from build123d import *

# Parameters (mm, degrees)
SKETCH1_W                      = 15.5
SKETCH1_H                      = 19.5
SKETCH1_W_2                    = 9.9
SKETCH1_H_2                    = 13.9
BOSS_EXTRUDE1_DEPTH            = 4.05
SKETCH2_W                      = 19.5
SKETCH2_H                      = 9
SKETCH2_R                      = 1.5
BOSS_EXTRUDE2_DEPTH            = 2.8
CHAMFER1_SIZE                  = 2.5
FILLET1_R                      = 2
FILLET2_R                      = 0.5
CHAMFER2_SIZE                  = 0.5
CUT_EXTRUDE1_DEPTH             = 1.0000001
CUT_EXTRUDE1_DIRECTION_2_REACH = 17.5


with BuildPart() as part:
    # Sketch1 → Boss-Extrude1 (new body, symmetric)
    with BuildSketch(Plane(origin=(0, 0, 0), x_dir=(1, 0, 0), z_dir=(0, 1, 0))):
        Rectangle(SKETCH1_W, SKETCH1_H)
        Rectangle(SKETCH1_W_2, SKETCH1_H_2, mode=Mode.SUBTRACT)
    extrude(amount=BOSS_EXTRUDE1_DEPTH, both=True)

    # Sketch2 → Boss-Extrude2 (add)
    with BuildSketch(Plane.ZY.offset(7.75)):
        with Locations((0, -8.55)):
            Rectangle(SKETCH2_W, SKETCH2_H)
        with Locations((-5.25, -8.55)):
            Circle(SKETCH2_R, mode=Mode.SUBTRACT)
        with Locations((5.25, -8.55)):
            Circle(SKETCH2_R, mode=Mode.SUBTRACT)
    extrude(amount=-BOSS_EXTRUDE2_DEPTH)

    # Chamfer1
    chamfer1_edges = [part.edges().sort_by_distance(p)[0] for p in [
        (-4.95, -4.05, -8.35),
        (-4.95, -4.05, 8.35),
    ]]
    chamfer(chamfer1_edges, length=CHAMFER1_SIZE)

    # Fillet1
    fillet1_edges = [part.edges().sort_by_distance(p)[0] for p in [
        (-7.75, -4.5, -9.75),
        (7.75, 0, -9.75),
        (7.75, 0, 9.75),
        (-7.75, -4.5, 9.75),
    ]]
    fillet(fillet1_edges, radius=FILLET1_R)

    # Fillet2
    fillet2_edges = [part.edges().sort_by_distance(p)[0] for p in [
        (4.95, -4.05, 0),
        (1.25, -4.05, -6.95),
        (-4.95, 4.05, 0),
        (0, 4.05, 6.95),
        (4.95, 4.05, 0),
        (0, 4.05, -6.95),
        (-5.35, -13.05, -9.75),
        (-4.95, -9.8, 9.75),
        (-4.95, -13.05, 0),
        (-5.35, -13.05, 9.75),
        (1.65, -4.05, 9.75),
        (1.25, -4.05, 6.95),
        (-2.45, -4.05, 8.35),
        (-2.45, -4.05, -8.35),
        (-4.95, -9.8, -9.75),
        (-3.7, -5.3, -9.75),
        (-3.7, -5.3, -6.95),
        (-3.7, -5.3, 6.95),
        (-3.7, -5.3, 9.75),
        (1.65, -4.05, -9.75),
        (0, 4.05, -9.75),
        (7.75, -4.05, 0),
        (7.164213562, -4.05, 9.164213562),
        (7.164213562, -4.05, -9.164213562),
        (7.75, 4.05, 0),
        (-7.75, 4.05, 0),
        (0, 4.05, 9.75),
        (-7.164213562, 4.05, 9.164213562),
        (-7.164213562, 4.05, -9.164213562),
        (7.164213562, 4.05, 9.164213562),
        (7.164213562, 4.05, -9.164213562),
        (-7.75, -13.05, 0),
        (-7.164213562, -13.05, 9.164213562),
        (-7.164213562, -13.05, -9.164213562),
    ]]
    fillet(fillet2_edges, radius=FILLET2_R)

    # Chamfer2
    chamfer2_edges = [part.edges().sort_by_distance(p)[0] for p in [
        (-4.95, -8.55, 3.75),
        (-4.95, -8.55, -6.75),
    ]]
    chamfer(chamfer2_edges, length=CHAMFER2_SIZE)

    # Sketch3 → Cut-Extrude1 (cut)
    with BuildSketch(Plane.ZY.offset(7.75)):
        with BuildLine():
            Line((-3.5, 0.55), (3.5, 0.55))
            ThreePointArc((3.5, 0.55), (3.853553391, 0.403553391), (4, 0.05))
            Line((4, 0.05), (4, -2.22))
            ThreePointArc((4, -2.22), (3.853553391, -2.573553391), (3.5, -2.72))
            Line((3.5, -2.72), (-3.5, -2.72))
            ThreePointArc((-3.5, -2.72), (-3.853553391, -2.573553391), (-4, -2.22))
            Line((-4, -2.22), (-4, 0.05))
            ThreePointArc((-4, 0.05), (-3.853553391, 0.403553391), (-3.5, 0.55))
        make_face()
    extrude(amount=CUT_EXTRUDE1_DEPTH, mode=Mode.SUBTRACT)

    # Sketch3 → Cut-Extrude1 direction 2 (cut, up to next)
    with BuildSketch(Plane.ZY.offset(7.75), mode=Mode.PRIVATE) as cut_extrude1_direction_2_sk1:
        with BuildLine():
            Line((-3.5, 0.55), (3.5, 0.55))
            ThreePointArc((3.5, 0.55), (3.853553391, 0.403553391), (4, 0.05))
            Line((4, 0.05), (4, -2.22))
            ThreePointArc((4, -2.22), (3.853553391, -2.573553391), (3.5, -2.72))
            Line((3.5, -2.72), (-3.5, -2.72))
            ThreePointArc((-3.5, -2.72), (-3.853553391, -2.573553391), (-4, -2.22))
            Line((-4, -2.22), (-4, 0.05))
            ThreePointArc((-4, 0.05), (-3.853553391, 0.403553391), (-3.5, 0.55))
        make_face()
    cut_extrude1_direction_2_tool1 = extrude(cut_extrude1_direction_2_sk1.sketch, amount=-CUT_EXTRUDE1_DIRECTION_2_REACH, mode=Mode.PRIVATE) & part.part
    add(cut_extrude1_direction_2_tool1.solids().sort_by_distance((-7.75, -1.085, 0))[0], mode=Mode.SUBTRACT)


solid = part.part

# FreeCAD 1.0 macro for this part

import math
import FreeCAD as App
import Part
import Sketcher


def edges_at(feature, points):
    """Names of the edges that pass closest to the given points."""
    edges = feature.Shape.Edges
    near = lambda p: min(range(len(edges)), key=lambda i: edges[i].distToShape(Part.Vertex(*p))[0])
    return sorted({f"Edge{near(p) + 1}" for p in points})

doc = App.newDocument("Part")
params = doc.addObject("Spreadsheet::Sheet", "Params")
for row, (alias, value) in enumerate([
    ("sketch1_width", "15.5 mm"),
    ("sketch1_width2", "9.9 mm"),
    ("sketch1_height", "19.5 mm"),
    ("sketch1_height2", "13.9 mm"),
    ("pad1_length", "8.1 mm"),
    ("sketch2_diameter", "3 mm"),
    ("sketch2_width", "9 mm"),
    ("sketch2_height", "19.5 mm"),
    ("pad2_length", "2.8 mm"),
    ("chamfer_size", "2.5 mm"),
    ("fillet_radius", "2 mm"),
    ("fillet2_radius", "0.5 mm"),
    ("chamfer2_size", "0.5 mm"),
    ("sketch3_radius", "0.5 mm"),
    ("sketch3_height", "7 mm"),
    ("sketch3_width", "2.27 mm"),
    ("pocket1_length", "1 mm"),
    ("sketch4_radius", "0.5 mm"),
    ("sketch4_height", "7 mm"),
    ("sketch4_width", "2.27 mm"),
], start=1):
    params.set(f"A{row}", alias)
    params.set(f"B{row}", "=" + value)
    params.setAlias(f"B{row}", alias)

body = doc.addObject("PartDesign::Body", "Body")

# Sketch on XZ plane
sketch1 = body.newObject("Sketcher::SketchObject", "Sketch")
sketch1.AttachmentSupport = (doc.getObject("XZ_Plane"), [""])
sketch1.MapMode = "FlatFace"
sketch1.addGeometry(Part.LineSegment(App.Vector(-8, -10, 0), App.Vector(-8, 10, 0)), False)
sketch1.addGeometry(Part.LineSegment(App.Vector(-8, 10, 0), App.Vector(8, 10, 0)), False)
sketch1.addGeometry(Part.LineSegment(App.Vector(8, 10, 0), App.Vector(8, -10, 0)), False)
sketch1.addGeometry(Part.LineSegment(App.Vector(8, -10, 0), App.Vector(-8, -10, 0)), False)
sketch1.addGeometry(Part.LineSegment(App.Vector(5, 7, 0), App.Vector(-5, 7, 0)), False)
sketch1.addGeometry(Part.LineSegment(App.Vector(-5, 7, 0), App.Vector(-5, -7, 0)), False)
sketch1.addGeometry(Part.LineSegment(App.Vector(-5, -7, 0), App.Vector(5, -7, 0)), False)
sketch1.addGeometry(Part.LineSegment(App.Vector(5, -7, 0), App.Vector(5, 7, 0)), False)
sketch1.addConstraint(Sketcher.Constraint("Coincident", 0, 2, 1, 1))
sketch1.addConstraint(Sketcher.Constraint("Coincident", 1, 2, 2, 1))
sketch1.addConstraint(Sketcher.Constraint("Coincident", 2, 2, 3, 1))
sketch1.addConstraint(Sketcher.Constraint("Coincident", 3, 2, 0, 1))
sketch1.addConstraint(Sketcher.Constraint("Coincident", 4, 2, 5, 1))
sketch1.addConstraint(Sketcher.Constraint("Coincident", 5, 2, 6, 1))
sketch1.addConstraint(Sketcher.Constraint("Coincident", 6, 2, 7, 1))
sketch1.addConstraint(Sketcher.Constraint("Coincident", 7, 2, 4, 1))
sketch1.addConstraint(Sketcher.Constraint("Vertical", 0))
sketch1.addConstraint(Sketcher.Constraint("Horizontal", 1))
sketch1.addConstraint(Sketcher.Constraint("Vertical", 2))
sketch1.addConstraint(Sketcher.Constraint("Horizontal", 3))
sketch1.addConstraint(Sketcher.Constraint("Horizontal", 4))
sketch1.addConstraint(Sketcher.Constraint("Vertical", 5))
sketch1.addConstraint(Sketcher.Constraint("Horizontal", 6))
sketch1.addConstraint(Sketcher.Constraint("Vertical", 7))
sketch1.addConstraint(Sketcher.Constraint("Symmetric", 0, 2, 2, 2, -1, 1))
sketch1.addConstraint(Sketcher.Constraint("Symmetric", 4, 2, 6, 2, -1, 1))
sketch1.addConstraint(Sketcher.Constraint("DistanceX", 1, 1, 1, 2, 15.5))
sketch1.addConstraint(Sketcher.Constraint("DistanceX", 4, 2, 4, 1, 9.9))
sketch1.addConstraint(Sketcher.Constraint("DistanceY", 0, 1, 0, 2, 19.5))
sketch1.addConstraint(Sketcher.Constraint("DistanceY", 5, 2, 5, 1, 13.9))
sketch1.setExpression("Constraints[18]", "Params.sketch1_width")
sketch1.setExpression("Constraints[19]", "Params.sketch1_width2")
sketch1.setExpression("Constraints[20]", "Params.sketch1_height")
sketch1.setExpression("Constraints[21]", "Params.sketch1_height2")
pad1 = body.newObject("PartDesign::Pad", "Pad")
pad1.Profile = sketch1
pad1.setExpression("Length", "Params.pad1_length")
pad1.Midplane = True

# Sketch on YZ plane
sketch2 = body.newObject("Sketcher::SketchObject", "Sketch001")
sketch2.AttachmentSupport = (doc.getObject("YZ_Plane"), [""])
sketch2.MapMode = "FlatFace"
sketch2.AttachmentOffset = App.Placement(App.Vector(0, 0, -7.75), App.Rotation())
sketch2.addGeometry(Part.LineSegment(App.Vector(-4, -9.8, 0), App.Vector(-13.1, -9.8, 0)), False)
sketch2.addGeometry(Part.LineSegment(App.Vector(-13.1, -9.8, 0), App.Vector(-13.1, 9.8, 0)), False)
sketch2.addGeometry(Part.LineSegment(App.Vector(-13.1, 9.8, 0), App.Vector(-4, 9.8, 0)), False)
sketch2.addGeometry(Part.LineSegment(App.Vector(-4, 9.8, 0), App.Vector(-4, -9.8, 0)), False)
sketch2.addGeometry(Part.Circle(App.Vector(-8.6, -5.2, 0), App.Vector(0, 0, 1), 1.5), False)
sketch2.addGeometry(Part.Circle(App.Vector(-8.6, 5.2, 0), App.Vector(0, 0, 1), 1.5), False)
sketch2.addConstraint(Sketcher.Constraint("Coincident", 0, 2, 1, 1))
sketch2.addConstraint(Sketcher.Constraint("Coincident", 1, 2, 2, 1))
sketch2.addConstraint(Sketcher.Constraint("Coincident", 2, 2, 3, 1))
sketch2.addConstraint(Sketcher.Constraint("Coincident", 3, 2, 0, 1))
sketch2.addConstraint(Sketcher.Constraint("Horizontal", 0))
sketch2.addConstraint(Sketcher.Constraint("Vertical", 1))
sketch2.addConstraint(Sketcher.Constraint("Horizontal", 2))
sketch2.addConstraint(Sketcher.Constraint("Vertical", 3))
sketch2.addConstraint(Sketcher.Constraint("Equal", 4, 5))
sketch2.addConstraint(Sketcher.Constraint("Symmetric", 4, 3, 5, 3, -1))
sketch2.addConstraint(Sketcher.Constraint("Diameter", 4, 3.0))
sketch2.addConstraint(Sketcher.Constraint("DistanceX", 0, 2, 0, 1, 9.0))
sketch2.addConstraint(Sketcher.Constraint("DistanceY", 1, 1, 1, 2, 19.5))
sketch2.addConstraint(Sketcher.Constraint("DistanceY", 0, 2, 5, 3, 15.0))
sketch2.addConstraint(Sketcher.Constraint("DistanceY", 4, 3, 1, 2, 15.0))
sketch2.addConstraint(Sketcher.Constraint("DistanceX", 0, 2, 4, 3, 4.5))
sketch2.addConstraint(Sketcher.Constraint("DistanceX", 4, 3, -1, 1, 8.55))
sketch2.setExpression("Constraints[10]", "Params.sketch2_diameter")
sketch2.setExpression("Constraints[11]", "Params.sketch2_width")
sketch2.setExpression("Constraints[12]", "Params.sketch2_height")
pad2 = body.newObject("PartDesign::Pad", "Pad001")
pad2.Profile = sketch2
pad2.setExpression("Length", "Params.pad2_length")
doc.recompute()

chamfer = body.newObject("PartDesign::Chamfer", "Chamfer")
chamfer.Base = (pad2, edges_at(pad2, [(-4.95, -4.05, -8.35), (-4.95, -4.05, 8.35)]))
chamfer.setExpression("Size", "Params.chamfer_size")
doc.recompute()

fillet = body.newObject("PartDesign::Fillet", "Fillet")
fillet.Base = (chamfer, edges_at(chamfer, [
    (-7.75, -4.5, -9.75),
    (7.75, 0, -9.75),
    (7.75, 0, 9.75),
    (-7.75, -4.5, 9.75),
]))
fillet.setExpression("Radius", "Params.fillet_radius")
doc.recompute()

fillet2 = body.newObject("PartDesign::Fillet", "Fillet001")
fillet2.Base = (fillet, edges_at(fillet, [
    (4.95, -4.05, 0),
    (1.25, -4.05, -6.95),
    (-4.95, 4.05, 0),
    (0, 4.05, 6.95),
    (4.95, 4.05, 0),
    (0, 4.05, -6.95),
    (-5.35, -13.05, -9.75),
    (-4.95, -9.8, 9.75),
    (-4.95, -13.05, 0),
    (-5.35, -13.05, 9.75),
    (1.65, -4.05, 9.75),
    (1.25, -4.05, 6.95),
    (-2.45, -4.05, 8.35),
    (-2.45, -4.05, -8.35),
    (-4.95, -9.8, -9.75),
    (-3.7, -5.3, -9.75),
    (-3.7, -5.3, -6.95),
    (-3.7, -5.3, 6.95),
    (-3.7, -5.3, 9.75),
    (1.65, -4.05, -9.75),
    (0, 4.05, -9.75),
    (7.75, -4.05, 0),
    (7.164, -4.05, 9.164),
    (7.164, -4.05, -9.164),
    (7.75, 4.05, 0),
    (-7.75, 4.05, 0),
    (0, 4.05, 9.75),
    (-7.164, 4.05, 9.164),
    (-7.164, 4.05, -9.164),
    (7.164, 4.05, 9.164),
    (7.164, 4.05, -9.164),
    (-7.75, -13.05, 0),
    (-7.164, -13.05, 9.164),
    (-7.164, -13.05, -9.164),
]))
fillet2.setExpression("Radius", "Params.fillet2_radius")
doc.recompute()

chamfer2 = body.newObject("PartDesign::Chamfer", "Chamfer001")
chamfer2.Base = (fillet2, edges_at(fillet2, [(-4.95, -8.55, 3.75), (-4.95, -8.55, -6.75)]))
chamfer2.setExpression("Size", "Params.chamfer2_size")

# Sketch on YZ plane
sketch3 = body.newObject("Sketcher::SketchObject", "Sketch002")
sketch3.AttachmentSupport = (doc.getObject("YZ_Plane"), [""])
sketch3.MapMode = "FlatFace"
sketch3.AttachmentOffset = App.Placement(App.Vector(0, 0, -7.75), App.Rotation())
sketch3.addGeometry(Part.LineSegment(App.Vector(0.55, 3.5, 0), App.Vector(0.55, -3.5, 0)), False)
sketch3.addGeometry(Part.ArcOfCircle(Part.Circle(App.Vector(0.05, -3.5, 0), App.Vector(0, 0, 1), 0.5), math.radians(-90), math.radians(0)), False)
sketch3.addGeometry(Part.LineSegment(App.Vector(0.05, -4, 0), App.Vector(-2.22, -4, 0)), False)
sketch3.addGeometry(Part.ArcOfCircle(Part.Circle(App.Vector(-2.22, -3.5, 0), App.Vector(0, 0, 1), 0.5), math.radians(180), math.radians(270)), False)
sketch3.addGeometry(Part.LineSegment(App.Vector(-2.72, -3.5, 0), App.Vector(-2.72, 3.5, 0)), False)
sketch3.addGeometry(Part.ArcOfCircle(Part.Circle(App.Vector(-2.22, 3.5, 0), App.Vector(0, 0, 1), 0.5), math.radians(90), math.radians(180)), False)
sketch3.addGeometry(Part.LineSegment(App.Vector(-2.22, 4, 0), App.Vector(0.05, 4, 0)), False)
sketch3.addGeometry(Part.ArcOfCircle(Part.Circle(App.Vector(0.05, 3.5, 0), App.Vector(0, 0, 1), 0.5), math.radians(0), math.radians(90)), False)
sketch3.addConstraint(Sketcher.Constraint("Tangent", 0, 2, 1, 2))
sketch3.addConstraint(Sketcher.Constraint("Tangent", 1, 1, 2, 1))
sketch3.addConstraint(Sketcher.Constraint("Tangent", 2, 2, 3, 2))
sketch3.addConstraint(Sketcher.Constraint("Tangent", 3, 1, 4, 1))
sketch3.addConstraint(Sketcher.Constraint("Tangent", 4, 2, 5, 2))
sketch3.addConstraint(Sketcher.Constraint("Tangent", 5, 1, 6, 1))
sketch3.addConstraint(Sketcher.Constraint("Tangent", 6, 2, 7, 2))
sketch3.addConstraint(Sketcher.Constraint("Tangent", 7, 1, 0, 1))
sketch3.addConstraint(Sketcher.Constraint("Vertical", 0))
sketch3.addConstraint(Sketcher.Constraint("Horizontal", 2))
sketch3.addConstraint(Sketcher.Constraint("Vertical", 4))
sketch3.addConstraint(Sketcher.Constraint("Horizontal", 6))
sketch3.addConstraint(Sketcher.Constraint("Equal", 1, 3))
sketch3.addConstraint(Sketcher.Constraint("Equal", 3, 5))
sketch3.addConstraint(Sketcher.Constraint("Equal", 5, 7))
sketch3.addConstraint(Sketcher.Constraint("Radius", 1, 0.5))
sketch3.addConstraint(Sketcher.Constraint("DistanceY", 0, 2, 0, 1, 7.0))
sketch3.addConstraint(Sketcher.Constraint("DistanceY", 1, 1, -1, 1, 4.0))
sketch3.addConstraint(Sketcher.Constraint("DistanceX", 2, 2, 2, 1, 2.27))
sketch3.addConstraint(Sketcher.Constraint("DistanceX", -1, 1, 1, 3, 0.05))
sketch3.setExpression("Constraints[15]", "Params.sketch3_radius")
sketch3.setExpression("Constraints[16]", "Params.sketch3_height")
sketch3.setExpression("Constraints[18]", "Params.sketch3_width")
pocket1 = body.newObject("PartDesign::Pocket", "Pocket")
pocket1.Profile = sketch3
pocket1.setExpression("Length", "Params.pocket1_length")

# Sketch on YZ plane
sketch4 = body.newObject("Sketcher::SketchObject", "Sketch003")
sketch4.AttachmentSupport = (doc.getObject("YZ_Plane"), [""])
sketch4.MapMode = "FlatFace"
sketch4.AttachmentOffset = App.Placement(App.Vector(0, 0, -7.75), App.Rotation())
sketch4.addGeometry(Part.LineSegment(App.Vector(0.55, 3.5, 0), App.Vector(0.55, -3.5, 0)), False)
sketch4.addGeometry(Part.ArcOfCircle(Part.Circle(App.Vector(0.05, -3.5, 0), App.Vector(0, 0, 1), 0.5), math.radians(-90), math.radians(0)), False)
sketch4.addGeometry(Part.LineSegment(App.Vector(0.05, -4, 0), App.Vector(-2.22, -4, 0)), False)
sketch4.addGeometry(Part.ArcOfCircle(Part.Circle(App.Vector(-2.22, -3.5, 0), App.Vector(0, 0, 1), 0.5), math.radians(180), math.radians(270)), False)
sketch4.addGeometry(Part.LineSegment(App.Vector(-2.72, -3.5, 0), App.Vector(-2.72, 3.5, 0)), False)
sketch4.addGeometry(Part.ArcOfCircle(Part.Circle(App.Vector(-2.22, 3.5, 0), App.Vector(0, 0, 1), 0.5), math.radians(90), math.radians(180)), False)
sketch4.addGeometry(Part.LineSegment(App.Vector(-2.22, 4, 0), App.Vector(0.05, 4, 0)), False)
sketch4.addGeometry(Part.ArcOfCircle(Part.Circle(App.Vector(0.05, 3.5, 0), App.Vector(0, 0, 1), 0.5), math.radians(0), math.radians(90)), False)
sketch4.addConstraint(Sketcher.Constraint("Tangent", 0, 2, 1, 2))
sketch4.addConstraint(Sketcher.Constraint("Tangent", 1, 1, 2, 1))
sketch4.addConstraint(Sketcher.Constraint("Tangent", 2, 2, 3, 2))
sketch4.addConstraint(Sketcher.Constraint("Tangent", 3, 1, 4, 1))
sketch4.addConstraint(Sketcher.Constraint("Tangent", 4, 2, 5, 2))
sketch4.addConstraint(Sketcher.Constraint("Tangent", 5, 1, 6, 1))
sketch4.addConstraint(Sketcher.Constraint("Tangent", 6, 2, 7, 2))
sketch4.addConstraint(Sketcher.Constraint("Tangent", 7, 1, 0, 1))
sketch4.addConstraint(Sketcher.Constraint("Vertical", 0))
sketch4.addConstraint(Sketcher.Constraint("Horizontal", 2))
sketch4.addConstraint(Sketcher.Constraint("Vertical", 4))
sketch4.addConstraint(Sketcher.Constraint("Horizontal", 6))
sketch4.addConstraint(Sketcher.Constraint("Equal", 1, 3))
sketch4.addConstraint(Sketcher.Constraint("Equal", 3, 5))
sketch4.addConstraint(Sketcher.Constraint("Equal", 5, 7))
sketch4.addConstraint(Sketcher.Constraint("Radius", 1, 0.5))
sketch4.addConstraint(Sketcher.Constraint("DistanceY", 0, 2, 0, 1, 7.0))
sketch4.addConstraint(Sketcher.Constraint("DistanceY", 1, 1, -1, 1, 4.0))
sketch4.addConstraint(Sketcher.Constraint("DistanceX", 2, 2, 2, 1, 2.27))
sketch4.addConstraint(Sketcher.Constraint("DistanceX", -1, 1, 1, 3, 0.05))
sketch4.setExpression("Constraints[15]", "Params.sketch4_radius")
sketch4.setExpression("Constraints[16]", "Params.sketch4_height")
sketch4.setExpression("Constraints[18]", "Params.sketch4_width")
pocket2 = body.newObject("PartDesign::Pocket", "Pocket001")
pocket2.Profile = sketch4
pocket2.Type = "UpToFirst"
pocket2.Reversed = True

doc.recompute()
